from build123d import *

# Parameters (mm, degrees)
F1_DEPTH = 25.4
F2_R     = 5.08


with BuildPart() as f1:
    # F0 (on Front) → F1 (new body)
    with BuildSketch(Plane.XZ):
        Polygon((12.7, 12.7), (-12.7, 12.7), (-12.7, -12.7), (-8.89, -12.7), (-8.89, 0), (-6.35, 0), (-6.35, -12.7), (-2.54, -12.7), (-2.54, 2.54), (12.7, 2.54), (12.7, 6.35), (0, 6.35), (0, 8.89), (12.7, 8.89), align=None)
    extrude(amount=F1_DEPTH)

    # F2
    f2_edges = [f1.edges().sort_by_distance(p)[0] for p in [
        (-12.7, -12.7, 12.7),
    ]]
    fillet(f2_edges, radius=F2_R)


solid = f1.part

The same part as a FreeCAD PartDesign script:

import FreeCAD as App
import Part
import Sketcher

V = App.Vector
Q = App.Units.Quantity


def edges_at(feature, points):
    """Names of the edges that pass closest to the given points."""
    edges = feature.Shape.Edges
    near = lambda p: min(range(len(edges)), key=lambda i: edges[i].distToShape(Part.Vertex(*p))[0])
    return sorted({f"Edge{near(p) + 1}" for p in points})


def add_polygon(sketch, points):
    """Adds a closed chain of lines whose ends are joined by coincident constraints."""
    first, n = sketch.GeometryCount, len(points)
    for a, b in zip(points, points[1:] + points[:1]):
        sketch.addGeometry(Part.LineSegment(App.Vector(*a, 0), App.Vector(*b, 0)), False)
    for i in range(n):
        sketch.addConstraint(Sketcher.Constraint("Coincident", first + i, 2, first + (i + 1) % n, 1))

doc = App.newDocument("Part")
params = doc.addObject("Spreadsheet::Sheet", "Params")
for row, (alias, value) in enumerate([
    ("sketch1_width", "1 in"),
    ("sketch1_width2", "0.1 in"),
    ("sketch1_width3", "0.6 in"),
    ("pad1_length", "1 in"),
    ("fillet_radius", "0.2 in"),
], start=1):
    params.set(f"A{row}", alias)
    params.set(f"B{row}", "=" + value)
    params.setAlias(f"B{row}", alias)

body = doc.addObject("PartDesign::Body", "Body")

# Sketch on XZ plane
sketch1 = body.newObject("Sketcher::SketchObject", "Sketch")
sketch1.AttachmentSupport = (doc.getObject("XZ_Plane"), [""])
sketch1.MapMode = "FlatFace"
add_polygon(sketch1, [(12.7, 12.7), (-12.7, 12.7), (-12.7, -12.7), (-8.89, -12.7), (-8.89, 0), (-6.35, 0), (-6.35, -12.7), (-2.54, -12.7), (-2.54, 2.54), (12.7, 2.54), (12.7, 6.35), (0, 6.35), (0, 8.89), (12.7, 8.89)])  # lines 0-13
sketch1.addConstraint([
    Sketcher.Constraint("Horizontal", 0),
    Sketcher.Constraint("Vertical", 1),
    Sketcher.Constraint("Horizontal", 2),
    Sketcher.Constraint("Vertical", 3),
    Sketcher.Constraint("Horizontal", 4),
    Sketcher.Constraint("Vertical", 5),
    Sketcher.Constraint("Horizontal", 6),
    Sketcher.Constraint("Vertical", 7),
    Sketcher.Constraint("Horizontal", 8),
    Sketcher.Constraint("Vertical", 9),
    Sketcher.Constraint("Horizontal", 10),
    Sketcher.Constraint("Vertical", 11),
    Sketcher.Constraint("Horizontal", 12),
    Sketcher.Constraint("Vertical", 13),
    Sketcher.Constraint("Symmetric", 1, 2, 13, 2, -1, 1),
    Sketcher.Constraint("PointOnObject", 3, 2, -1),
    Sketcher.Constraint("PointOnObject", 10, 2, -2),
    Sketcher.Constraint("Horizontal", 2, 2, 5, 2),
    Sketcher.Constraint("Vertical", 9, 2, 12, 2),
    Sketcher.Constraint("Equal", 2, 6),
    Sketcher.Constraint("Equal", 0, 1),
    Sketcher.Constraint("Equal", 8, 7),
    Sketcher.Constraint("Equal", 6, 9),
    Sketcher.Constraint("Equal", 4, 11),
    Sketcher.Constraint("DistanceX", 0, 2, 0, 1, Q("1 in")),
    Sketcher.Constraint("DistanceX", 4, 1, 4, 2, Q("0.1 in")),
    Sketcher.Constraint("DistanceX", 8, 1, 8, 2, Q("0.6 in")),
])
sketch1.setExpression("Constraints[38]", "Params.sketch1_width")
sketch1.setExpression("Constraints[39]", "Params.sketch1_width2")
sketch1.setExpression("Constraints[40]", "Params.sketch1_width3")
pad1 = body.newObject("PartDesign::Pad", "Pad")
pad1.Profile = sketch1
pad1.setExpression("Length", "Params.pad1_length")
doc.recompute()

fillet = body.newObject("PartDesign::Fillet", "Fillet")
fillet.Base = (pad1, edges_at(pad1, [(-12.7, -12.7, 12.7)]))
fillet.setExpression("Radius", "Params.fillet_radius")

doc.recompute()
